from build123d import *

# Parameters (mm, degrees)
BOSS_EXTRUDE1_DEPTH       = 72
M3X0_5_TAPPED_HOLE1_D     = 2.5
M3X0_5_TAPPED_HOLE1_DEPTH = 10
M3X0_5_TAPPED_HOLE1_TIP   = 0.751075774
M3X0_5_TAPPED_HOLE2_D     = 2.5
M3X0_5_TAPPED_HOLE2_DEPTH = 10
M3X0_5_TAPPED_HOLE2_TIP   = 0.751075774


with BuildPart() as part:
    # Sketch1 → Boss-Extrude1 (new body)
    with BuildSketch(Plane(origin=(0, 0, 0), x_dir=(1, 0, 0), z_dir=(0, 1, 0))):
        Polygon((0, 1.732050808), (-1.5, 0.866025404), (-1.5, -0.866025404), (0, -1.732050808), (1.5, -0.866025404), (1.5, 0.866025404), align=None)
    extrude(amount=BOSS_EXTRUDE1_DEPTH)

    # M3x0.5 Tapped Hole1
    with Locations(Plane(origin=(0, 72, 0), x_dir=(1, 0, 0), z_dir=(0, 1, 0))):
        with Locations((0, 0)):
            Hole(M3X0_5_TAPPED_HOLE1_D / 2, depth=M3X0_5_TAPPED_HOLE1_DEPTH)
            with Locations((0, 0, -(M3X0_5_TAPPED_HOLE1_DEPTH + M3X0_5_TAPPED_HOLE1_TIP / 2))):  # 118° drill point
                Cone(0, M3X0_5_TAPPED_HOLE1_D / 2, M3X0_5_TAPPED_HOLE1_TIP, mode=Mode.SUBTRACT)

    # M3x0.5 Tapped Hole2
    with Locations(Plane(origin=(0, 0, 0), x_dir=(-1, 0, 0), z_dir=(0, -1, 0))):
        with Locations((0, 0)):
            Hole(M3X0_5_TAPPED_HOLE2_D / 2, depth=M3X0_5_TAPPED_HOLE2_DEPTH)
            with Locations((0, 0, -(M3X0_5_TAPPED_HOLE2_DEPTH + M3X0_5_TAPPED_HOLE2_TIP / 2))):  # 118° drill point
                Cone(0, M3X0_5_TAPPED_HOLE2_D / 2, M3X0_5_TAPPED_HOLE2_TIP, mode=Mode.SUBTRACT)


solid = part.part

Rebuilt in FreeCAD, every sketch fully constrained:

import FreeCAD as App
import Part
import Sketcher
from FreeCAD import Vector
Q = App.Units.Quantity


def add_polygon(sketch, points):
    """Adds a closed chain of lines whose ends are joined by coincident constraints."""
    first, n = sketch.GeometryCount, len(points)
    for a, b in zip(points, points[1:] + points[:1]):
        sketch.addGeometry(Part.LineSegment(App.Vector(*a, 0), App.Vector(*b, 0)), False)
    for i in range(n):
        sketch.addConstraint(Sketcher.Constraint("Coincident", first + i, 2, first + (i + 1) % n, 1))

doc = App.newDocument("Part")
body = doc.addObject("PartDesign::Body", "Body")

# Sketch on XZ plane
sketch1 = body.newObject("Sketcher::SketchObject", "Sketch")
sketch1.AttachmentSupport = (doc.getObject("XZ_Plane"), [""])
sketch1.MapMode = "FlatFace"
add_polygon(sketch1, [(0, -1.7), (-1.5, -0.9), (-1.5, 0.9), (0, 1.7), (1.5, 0.9), (1.5, -0.9)])  # lines 0-5
sketch1.addConstraint([
    Sketcher.Constraint("Vertical", 1),
    Sketcher.Constraint("Vertical", 4),
    Sketcher.Constraint("Symmetric", 0, 2, 3, 2, -1, 1),
    Sketcher.Constraint("Symmetric", 2, 2, 5, 2, -1, 1),
    Sketcher.Constraint("PointOnObject", 2, 2, -2),
    Sketcher.Constraint("Parallel", 2, 5),
    Sketcher.Constraint("Horizontal", 1, 2, 3, 2),
    Sketcher.Constraint("Angle", 0, Q("150 deg")),
    Sketcher.Constraint("DistanceX", 1, 2, 3, 2, Q("3 mm")),
    Sketcher.Constraint("DistanceY", 1, 1, 1, 2, Q("1.732051 mm")),
])
pad1 = body.newObject("PartDesign::Pad", "Pad")
pad1.Profile = sketch1
pad1.Length = 72
pad1.Reversed = True

# Sketch on XZ plane
sketch2 = body.newObject("Sketcher::SketchObject", "Sketch001")
sketch2.AttachmentSupport = (doc.getObject("XZ_Plane"), [""])
sketch2.MapMode = "FlatFace"
sketch2.AttachmentOffset = App.Placement(Vector(0, 0, -72), App.Rotation())
sketch2.addGeometry(Part.Circle(Vector(0, 0, 0), Vector(0, 0, 1), 1.2), False)
sketch2.addConstraint([
    Sketcher.Constraint("Coincident", 0, 3, -1, 1),
    Sketcher.Constraint("Diameter", 0, Q("2.5 mm")),
])
doc.recompute()
hole = body.newObject("PartDesign::Hole", "Hole")
hole.Profile = sketch2
hole.ThreadType = "None"
hole.Diameter = 2.5
hole.DepthType = "Dimension"
hole.Depth = 10
hole.DrillPoint = "Angled"
hole.DrillPointAngle = 118
hole.Reversed = True

# Sketch on XZ plane
sketch3 = body.newObject("Sketcher::SketchObject", "Sketch002")
sketch3.AttachmentSupport = (doc.getObject("XZ_Plane"), [""])
sketch3.MapMode = "FlatFace"
sketch3.addGeometry(Part.Circle(Vector(0, 0, 0), Vector(0, 0, 1), 1.2), False)
sketch3.addConstraint([
    Sketcher.Constraint("Coincident", 0, 3, -1, 1),
    Sketcher.Constraint("Diameter", 0, Q("2.5 mm")),
])
doc.recompute()
hole2 = body.newObject("PartDesign::Hole", "Hole001")
hole2.Profile = sketch3
hole2.ThreadType = "None"
hole2.Diameter = 2.5
hole2.DepthType = "Dimension"
hole2.Depth = 10
hole2.DrillPoint = "Angled"
hole2.DrillPointAngle = 118

doc.recompute()
